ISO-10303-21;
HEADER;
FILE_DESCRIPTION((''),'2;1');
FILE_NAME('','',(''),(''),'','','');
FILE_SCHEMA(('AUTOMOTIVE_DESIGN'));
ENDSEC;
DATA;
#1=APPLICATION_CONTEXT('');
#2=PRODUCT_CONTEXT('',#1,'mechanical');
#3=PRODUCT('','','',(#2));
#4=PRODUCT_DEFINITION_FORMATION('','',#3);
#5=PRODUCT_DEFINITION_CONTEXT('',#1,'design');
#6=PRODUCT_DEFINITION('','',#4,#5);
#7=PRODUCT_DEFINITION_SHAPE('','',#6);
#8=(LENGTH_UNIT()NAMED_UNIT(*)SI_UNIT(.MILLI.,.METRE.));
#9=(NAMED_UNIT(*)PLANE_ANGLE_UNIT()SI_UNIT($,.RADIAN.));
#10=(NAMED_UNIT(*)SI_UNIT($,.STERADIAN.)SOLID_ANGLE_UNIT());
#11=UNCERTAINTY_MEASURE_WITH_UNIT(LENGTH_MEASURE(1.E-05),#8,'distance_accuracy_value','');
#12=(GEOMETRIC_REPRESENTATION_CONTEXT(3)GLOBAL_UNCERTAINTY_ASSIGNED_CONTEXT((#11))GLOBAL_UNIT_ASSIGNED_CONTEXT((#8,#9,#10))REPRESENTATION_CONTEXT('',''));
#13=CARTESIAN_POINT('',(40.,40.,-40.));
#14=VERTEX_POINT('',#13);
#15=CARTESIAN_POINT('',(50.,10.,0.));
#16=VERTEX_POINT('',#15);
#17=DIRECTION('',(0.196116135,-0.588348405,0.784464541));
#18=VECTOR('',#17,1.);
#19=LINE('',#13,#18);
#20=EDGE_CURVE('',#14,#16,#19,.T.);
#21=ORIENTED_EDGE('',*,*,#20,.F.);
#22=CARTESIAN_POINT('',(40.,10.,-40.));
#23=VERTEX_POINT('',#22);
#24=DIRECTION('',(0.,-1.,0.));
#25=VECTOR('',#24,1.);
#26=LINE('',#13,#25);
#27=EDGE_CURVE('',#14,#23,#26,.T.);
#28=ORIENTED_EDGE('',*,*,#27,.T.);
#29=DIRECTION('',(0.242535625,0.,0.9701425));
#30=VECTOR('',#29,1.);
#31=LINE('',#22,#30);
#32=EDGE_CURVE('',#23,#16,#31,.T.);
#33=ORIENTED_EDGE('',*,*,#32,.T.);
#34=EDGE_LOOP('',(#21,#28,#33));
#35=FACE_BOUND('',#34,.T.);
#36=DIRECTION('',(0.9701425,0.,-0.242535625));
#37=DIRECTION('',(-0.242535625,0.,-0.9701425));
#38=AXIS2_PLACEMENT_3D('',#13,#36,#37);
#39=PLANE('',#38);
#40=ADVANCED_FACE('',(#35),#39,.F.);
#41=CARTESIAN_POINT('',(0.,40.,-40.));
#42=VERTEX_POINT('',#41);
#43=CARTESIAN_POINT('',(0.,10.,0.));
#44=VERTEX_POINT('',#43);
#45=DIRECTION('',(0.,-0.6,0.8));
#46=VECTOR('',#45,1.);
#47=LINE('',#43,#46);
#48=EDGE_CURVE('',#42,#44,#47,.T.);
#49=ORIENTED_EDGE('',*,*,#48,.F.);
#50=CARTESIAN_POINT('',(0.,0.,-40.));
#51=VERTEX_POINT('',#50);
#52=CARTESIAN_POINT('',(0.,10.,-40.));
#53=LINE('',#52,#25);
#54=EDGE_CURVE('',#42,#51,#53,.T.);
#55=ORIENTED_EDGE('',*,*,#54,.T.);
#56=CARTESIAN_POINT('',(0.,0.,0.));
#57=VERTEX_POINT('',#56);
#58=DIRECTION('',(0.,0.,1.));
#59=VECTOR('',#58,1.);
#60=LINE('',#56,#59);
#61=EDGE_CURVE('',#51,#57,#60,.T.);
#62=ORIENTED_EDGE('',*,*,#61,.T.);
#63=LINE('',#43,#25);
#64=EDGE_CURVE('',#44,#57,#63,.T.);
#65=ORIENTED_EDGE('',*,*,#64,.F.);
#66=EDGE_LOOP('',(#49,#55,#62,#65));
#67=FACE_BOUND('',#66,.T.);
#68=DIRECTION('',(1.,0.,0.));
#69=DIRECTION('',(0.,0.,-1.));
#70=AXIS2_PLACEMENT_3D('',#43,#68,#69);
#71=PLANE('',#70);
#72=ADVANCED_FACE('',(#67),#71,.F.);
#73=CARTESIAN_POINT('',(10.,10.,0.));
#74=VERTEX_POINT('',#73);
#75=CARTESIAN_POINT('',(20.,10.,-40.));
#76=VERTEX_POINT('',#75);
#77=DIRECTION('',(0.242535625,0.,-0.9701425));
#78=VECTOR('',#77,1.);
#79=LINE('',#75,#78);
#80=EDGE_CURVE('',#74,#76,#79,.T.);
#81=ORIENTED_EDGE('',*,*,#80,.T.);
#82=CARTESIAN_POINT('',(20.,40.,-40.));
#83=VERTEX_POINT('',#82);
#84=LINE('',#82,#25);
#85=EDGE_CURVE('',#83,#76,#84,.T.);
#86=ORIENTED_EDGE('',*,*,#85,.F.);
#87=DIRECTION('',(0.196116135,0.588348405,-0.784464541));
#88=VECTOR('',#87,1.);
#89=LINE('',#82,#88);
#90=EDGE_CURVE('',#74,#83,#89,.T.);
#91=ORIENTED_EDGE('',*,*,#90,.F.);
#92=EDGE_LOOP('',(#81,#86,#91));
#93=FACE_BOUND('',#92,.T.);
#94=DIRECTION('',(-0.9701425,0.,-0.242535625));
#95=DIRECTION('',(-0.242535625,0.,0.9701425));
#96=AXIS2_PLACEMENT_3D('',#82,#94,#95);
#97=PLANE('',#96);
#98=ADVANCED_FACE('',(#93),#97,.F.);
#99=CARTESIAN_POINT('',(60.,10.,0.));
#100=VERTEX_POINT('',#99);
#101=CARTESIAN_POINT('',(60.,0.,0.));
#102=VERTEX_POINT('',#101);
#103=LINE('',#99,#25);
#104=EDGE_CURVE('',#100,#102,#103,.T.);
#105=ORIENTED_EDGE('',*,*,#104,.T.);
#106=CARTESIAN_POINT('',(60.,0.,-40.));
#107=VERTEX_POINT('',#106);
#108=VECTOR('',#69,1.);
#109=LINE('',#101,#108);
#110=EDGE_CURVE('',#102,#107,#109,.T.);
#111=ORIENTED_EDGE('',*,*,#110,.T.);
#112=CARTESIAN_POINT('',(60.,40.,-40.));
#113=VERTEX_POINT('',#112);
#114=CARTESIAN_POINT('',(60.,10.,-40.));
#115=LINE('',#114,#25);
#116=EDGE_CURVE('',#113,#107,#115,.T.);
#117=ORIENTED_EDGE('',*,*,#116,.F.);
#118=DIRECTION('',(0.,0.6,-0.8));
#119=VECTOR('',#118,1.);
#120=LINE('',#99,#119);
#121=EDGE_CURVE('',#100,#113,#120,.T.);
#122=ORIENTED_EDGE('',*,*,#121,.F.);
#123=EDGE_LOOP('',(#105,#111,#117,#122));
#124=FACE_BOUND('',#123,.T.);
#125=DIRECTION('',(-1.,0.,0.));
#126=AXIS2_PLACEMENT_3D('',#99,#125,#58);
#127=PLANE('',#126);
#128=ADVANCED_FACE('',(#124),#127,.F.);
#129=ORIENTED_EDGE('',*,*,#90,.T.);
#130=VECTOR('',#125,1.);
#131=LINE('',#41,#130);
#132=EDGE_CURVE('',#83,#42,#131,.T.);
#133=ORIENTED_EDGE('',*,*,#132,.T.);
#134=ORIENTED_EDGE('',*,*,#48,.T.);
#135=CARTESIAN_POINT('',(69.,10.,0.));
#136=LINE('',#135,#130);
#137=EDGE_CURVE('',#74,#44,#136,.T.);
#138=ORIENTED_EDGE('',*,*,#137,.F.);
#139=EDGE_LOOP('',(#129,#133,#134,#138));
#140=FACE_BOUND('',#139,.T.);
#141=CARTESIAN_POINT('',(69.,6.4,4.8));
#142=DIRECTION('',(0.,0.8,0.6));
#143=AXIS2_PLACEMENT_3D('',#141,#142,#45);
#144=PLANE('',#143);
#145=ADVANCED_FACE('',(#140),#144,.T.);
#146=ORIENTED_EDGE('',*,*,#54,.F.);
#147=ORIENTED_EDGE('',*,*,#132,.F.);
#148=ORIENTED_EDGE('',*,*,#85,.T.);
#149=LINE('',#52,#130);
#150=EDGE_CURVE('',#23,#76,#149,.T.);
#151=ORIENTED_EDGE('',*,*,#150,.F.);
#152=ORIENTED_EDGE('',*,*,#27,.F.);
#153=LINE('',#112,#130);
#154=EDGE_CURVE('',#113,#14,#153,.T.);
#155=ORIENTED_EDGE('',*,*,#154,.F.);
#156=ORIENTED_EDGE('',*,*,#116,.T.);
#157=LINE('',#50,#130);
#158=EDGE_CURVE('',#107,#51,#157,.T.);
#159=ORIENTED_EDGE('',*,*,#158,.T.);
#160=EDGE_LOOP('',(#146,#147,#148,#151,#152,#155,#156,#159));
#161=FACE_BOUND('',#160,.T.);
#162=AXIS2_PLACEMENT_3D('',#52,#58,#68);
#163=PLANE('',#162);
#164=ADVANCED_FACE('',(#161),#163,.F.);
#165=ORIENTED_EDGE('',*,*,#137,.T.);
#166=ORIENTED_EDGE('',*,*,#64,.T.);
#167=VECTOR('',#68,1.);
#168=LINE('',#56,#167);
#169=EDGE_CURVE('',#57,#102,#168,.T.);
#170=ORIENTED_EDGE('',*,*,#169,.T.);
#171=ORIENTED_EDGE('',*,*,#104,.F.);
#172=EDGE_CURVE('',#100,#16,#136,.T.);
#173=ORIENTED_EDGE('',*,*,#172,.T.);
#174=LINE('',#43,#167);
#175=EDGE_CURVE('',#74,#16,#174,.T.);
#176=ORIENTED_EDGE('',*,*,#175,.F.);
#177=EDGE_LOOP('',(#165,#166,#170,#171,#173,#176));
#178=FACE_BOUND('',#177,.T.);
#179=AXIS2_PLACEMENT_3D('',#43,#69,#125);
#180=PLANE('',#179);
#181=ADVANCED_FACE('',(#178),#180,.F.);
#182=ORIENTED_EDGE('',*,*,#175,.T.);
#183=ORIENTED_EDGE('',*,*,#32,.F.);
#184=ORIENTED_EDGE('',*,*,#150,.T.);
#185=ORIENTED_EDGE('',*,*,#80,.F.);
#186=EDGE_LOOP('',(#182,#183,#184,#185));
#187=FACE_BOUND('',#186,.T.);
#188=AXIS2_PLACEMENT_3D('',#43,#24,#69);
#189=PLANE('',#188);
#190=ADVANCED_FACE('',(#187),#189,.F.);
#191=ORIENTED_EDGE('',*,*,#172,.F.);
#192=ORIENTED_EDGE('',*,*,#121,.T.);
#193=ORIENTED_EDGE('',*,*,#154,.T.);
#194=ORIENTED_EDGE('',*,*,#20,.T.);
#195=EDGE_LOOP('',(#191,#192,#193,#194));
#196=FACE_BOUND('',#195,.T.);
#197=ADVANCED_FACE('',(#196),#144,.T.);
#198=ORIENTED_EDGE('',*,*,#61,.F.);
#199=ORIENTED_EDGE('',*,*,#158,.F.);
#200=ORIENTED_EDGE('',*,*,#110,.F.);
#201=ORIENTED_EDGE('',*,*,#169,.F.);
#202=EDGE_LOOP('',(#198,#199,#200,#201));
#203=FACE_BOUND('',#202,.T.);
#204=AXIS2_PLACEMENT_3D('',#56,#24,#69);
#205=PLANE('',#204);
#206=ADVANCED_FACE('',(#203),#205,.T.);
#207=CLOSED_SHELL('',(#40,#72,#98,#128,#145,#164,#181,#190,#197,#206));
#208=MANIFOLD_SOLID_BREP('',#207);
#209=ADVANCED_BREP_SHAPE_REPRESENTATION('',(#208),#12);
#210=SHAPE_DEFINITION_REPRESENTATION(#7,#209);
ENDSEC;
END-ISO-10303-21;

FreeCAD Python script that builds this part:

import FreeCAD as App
import Part
import Sketcher
Q = App.Units.Quantity

doc = App.newDocument("Part")
body = doc.addObject("PartDesign::Body", "Body")

# Sketch on XZ plane
sketch1 = body.newObject("Sketcher::SketchObject", "Sketch")
sketch1.AttachmentSupport = (doc.getObject("XZ_Plane"), [""])
sketch1.MapMode = "FlatFace"
sketch1.addGeometry(Part.LineSegment(App.Vector(0, -40, 0), App.Vector(0, 0, 0)), False)
sketch1.addGeometry(Part.LineSegment(App.Vector(0, 0, 0), App.Vector(60, 0, 0)), False)
sketch1.addGeometry(Part.LineSegment(App.Vector(60, 0, 0), App.Vector(60, -40, 0)), False)
sketch1.addGeometry(Part.LineSegment(App.Vector(60, -40, 0), App.Vector(0, -40, 0)), False)
sketch1.addConstraint(Sketcher.Constraint("Coincident", 0, 2, 1, 1))
sketch1.addConstraint(Sketcher.Constraint("Coincident", 1, 2, 2, 1))
sketch1.addConstraint(Sketcher.Constraint("Coincident", 2, 2, 3, 1))
sketch1.addConstraint(Sketcher.Constraint("Coincident", 3, 2, 0, 1))
sketch1.addConstraint(Sketcher.Constraint("Vertical", 0))
sketch1.addConstraint(Sketcher.Constraint("Horizontal", 1))
sketch1.addConstraint(Sketcher.Constraint("Vertical", 2))
sketch1.addConstraint(Sketcher.Constraint("Horizontal", 3))
sketch1.addConstraint(Sketcher.Constraint("Coincident", 0, 2, -1, 1))
sketch1.addConstraint(Sketcher.Constraint("DistanceX", 1, 1, 1, 2, Q("60 mm")))
sketch1.addConstraint(Sketcher.Constraint("DistanceY", 0, 1, 0, 2, Q("40 mm")))
pad1 = body.newObject("PartDesign::Pad", "Pad")
pad1.Profile = sketch1
pad1.Length = 10
pad1.Reversed = True

# Sketch on XZ plane
sketch2 = body.newObject("Sketcher::SketchObject", "Sketch001")
sketch2.AttachmentSupport = (doc.getObject("XZ_Plane"), [""])
sketch2.MapMode = "FlatFace"
sketch2.AttachmentOffset = App.Placement(App.Vector(0, 0, -10), App.Rotation())
sketch2.addGeometry(Part.LineSegment(App.Vector(0, -40, 0), App.Vector(0, 0, 0)), False)
sketch2.addGeometry(Part.LineSegment(App.Vector(0, 0, 0), App.Vector(10, 0, 0)), False)
sketch2.addGeometry(Part.LineSegment(App.Vector(10, 0, 0), App.Vector(20, -40, 0)), False)
sketch2.addGeometry(Part.LineSegment(App.Vector(20, -40, 0), App.Vector(0, -40, 0)), False)
sketch2.addGeometry(Part.LineSegment(App.Vector(60, -40, 0), App.Vector(40, -40, 0)), False)
sketch2.addGeometry(Part.LineSegment(App.Vector(40, -40, 0), App.Vector(50, 0, 0)), False)
sketch2.addGeometry(Part.LineSegment(App.Vector(50, 0, 0), App.Vector(60, 0, 0)), False)
sketch2.addGeometry(Part.LineSegment(App.Vector(60, 0, 0), App.Vector(60, -40, 0)), False)
sketch2.addConstraint(Sketcher.Constraint("Coincident", 0, 2, 1, 1))
sketch2.addConstraint(Sketcher.Constraint("Coincident", 1, 2, 2, 1))
sketch2.addConstraint(Sketcher.Constraint("Coincident", 2, 2, 3, 1))
sketch2.addConstraint(Sketcher.Constraint("Coincident", 3, 2, 0, 1))
sketch2.addConstraint(Sketcher.Constraint("Coincident", 4, 2, 5, 1))
sketch2.addConstraint(Sketcher.Constraint("Coincident", 5, 2, 6, 1))
sketch2.addConstraint(Sketcher.Constraint("Coincident", 6, 2, 7, 1))
sketch2.addConstraint(Sketcher.Constraint("Coincident", 7, 2, 4, 1))
sketch2.addConstraint(Sketcher.Constraint("Vertical", 0))
sketch2.addConstraint(Sketcher.Constraint("Horizontal", 1))
sketch2.addConstraint(Sketcher.Constraint("Horizontal", 3))
sketch2.addConstraint(Sketcher.Constraint("Horizontal", 4))
sketch2.addConstraint(Sketcher.Constraint("Horizontal", 6))
sketch2.addConstraint(Sketcher.Constraint("Vertical", 7))
sketch2.addConstraint(Sketcher.Constraint("Coincident", 0, 2, -1, 1))
sketch2.addConstraint(Sketcher.Constraint("PointOnObject", 5, 2, -1))
sketch2.addConstraint(Sketcher.Constraint("Horizontal", 3, 2, 4, 2))
sketch2.addConstraint(Sketcher.Constraint("Equal", 3, 4))
sketch2.addConstraint(Sketcher.Constraint("Equal", 1, 6))
sketch2.addConstraint(Sketcher.Constraint("DistanceX", 1, 1, 1, 2, Q("10 mm")))
sketch2.addConstraint(Sketcher.Constraint("DistanceX", 3, 2, 3, 1, Q("20 mm")))
sketch2.addConstraint(Sketcher.Constraint("DistanceY", 0, 1, 0, 2, Q("40 mm")))
sketch2.addConstraint(Sketcher.Constraint("DistanceX", -1, 1, 4, 2, Q("40 mm")))
pad2 = body.newObject("PartDesign::Pad", "Pad001")
pad2.Profile = sketch2
pad2.Length = 30
pad2.Reversed = True

# Sketch on YZ plane
sketch3 = body.newObject("Sketcher::SketchObject", "Sketch002")
sketch3.AttachmentSupport = (doc.getObject("YZ_Plane"), [""])
sketch3.MapMode = "FlatFace"
sketch3.AttachmentOffset = App.Placement(App.Vector(0, 0, 60), App.Rotation())
sketch3.addGeometry(Part.LineSegment(App.Vector(40, 0, 0), App.Vector(10, 0, 0)), False)
sketch3.addGeometry(Part.LineSegment(App.Vector(10, 0, 0), App.Vector(40, -40, 0)), False)
sketch3.addGeometry(Part.LineSegment(App.Vector(40, -40, 0), App.Vector(40, 0, 0)), False)
sketch3.addConstraint(Sketcher.Constraint("Coincident", 0, 2, 1, 1))
sketch3.addConstraint(Sketcher.Constraint("Coincident", 1, 2, 2, 1))
sketch3.addConstraint(Sketcher.Constraint("Coincident", 2, 2, 0, 1))
sketch3.addConstraint(Sketcher.Constraint("Horizontal", 0))
sketch3.addConstraint(Sketcher.Constraint("Vertical", 2))
sketch3.addConstraint(Sketcher.Constraint("PointOnObject", 0, 2, -1))
sketch3.addConstraint(Sketcher.Constraint("DistanceX", 0, 2, 0, 1, Q("30 mm")))
sketch3.addConstraint(Sketcher.Constraint("DistanceY", 2, 1, 2, 2, Q("40 mm")))
sketch3.addConstraint(Sketcher.Constraint("DistanceX", -1, 1, 0, 2, Q("10 mm")))
pocket1 = body.newObject("PartDesign::Pocket", "Pocket")
pocket1.Profile = sketch3
pocket1.Type = "ThroughAll"
pocket1.Midplane = True

doc.recompute()
